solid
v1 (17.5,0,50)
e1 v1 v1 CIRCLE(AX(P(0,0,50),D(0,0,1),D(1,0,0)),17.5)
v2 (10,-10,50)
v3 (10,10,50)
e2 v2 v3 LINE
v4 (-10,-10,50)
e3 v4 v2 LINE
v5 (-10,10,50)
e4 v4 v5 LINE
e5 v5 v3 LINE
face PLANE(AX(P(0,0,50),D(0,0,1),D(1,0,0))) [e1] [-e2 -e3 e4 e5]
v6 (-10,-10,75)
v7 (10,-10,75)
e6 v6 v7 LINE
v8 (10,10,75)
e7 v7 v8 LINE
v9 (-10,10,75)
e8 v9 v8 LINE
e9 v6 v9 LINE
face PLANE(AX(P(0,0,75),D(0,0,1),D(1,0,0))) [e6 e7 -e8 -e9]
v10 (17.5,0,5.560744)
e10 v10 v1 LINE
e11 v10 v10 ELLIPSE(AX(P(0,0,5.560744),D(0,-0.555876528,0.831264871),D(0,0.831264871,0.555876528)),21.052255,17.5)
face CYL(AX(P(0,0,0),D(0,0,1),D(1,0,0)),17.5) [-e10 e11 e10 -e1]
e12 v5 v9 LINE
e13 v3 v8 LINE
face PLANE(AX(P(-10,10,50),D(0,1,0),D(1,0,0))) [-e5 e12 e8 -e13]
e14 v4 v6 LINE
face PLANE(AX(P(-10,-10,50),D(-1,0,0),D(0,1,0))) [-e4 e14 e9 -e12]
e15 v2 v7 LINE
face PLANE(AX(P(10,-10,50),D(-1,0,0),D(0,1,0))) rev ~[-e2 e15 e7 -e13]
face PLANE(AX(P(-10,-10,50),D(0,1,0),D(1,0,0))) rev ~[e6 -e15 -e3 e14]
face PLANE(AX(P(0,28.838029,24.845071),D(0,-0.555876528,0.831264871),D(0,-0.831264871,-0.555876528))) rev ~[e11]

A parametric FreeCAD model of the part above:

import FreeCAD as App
import Part
import Sketcher
from FreeCAD import Vector

doc = App.newDocument("Part")
body = doc.addObject("PartDesign::Body", "Body")

sketch1 = body.newObject("Sketcher::SketchObject", "Sketch")
sketch1.AttachmentSupport = (doc.getObject("XY_Plane"), [""])
sketch1.MapMode = "FlatFace"
sketch1.addGeometry(Part.Circle(Vector(0, 0, 0), Vector(0, 0, 1), 18), False)
sketch1.addConstraint([
    Sketcher.Constraint("Coincident", 0, 3, -1, 1),
    Sketcher.Constraint("Diameter", 0, 35.0),
])
pad1 = body.newObject("PartDesign::Pad", "Pad")
pad1.Profile = sketch1
pad1.Length = 100
pad1.Midplane = True

sketch2 = body.newObject("Sketcher::SketchObject", "Sketch001")
sketch2.AttachmentSupport = (doc.getObject("XY_Plane"), [""])
sketch2.MapMode = "FlatFace"
sketch2.AttachmentOffset = App.Placement(Vector(0, 0, 50), App.Rotation())
sketch2.addGeometry([
    Part.LineSegment(Vector(-10, 10, 0), Vector(-10, -10, 0)),
    Part.LineSegment(Vector(-10, -10, 0), Vector(10, -10, 0)),
    Part.LineSegment(Vector(10, -10, 0), Vector(10, 10, 0)),
    Part.LineSegment(Vector(10, 10, 0), Vector(-10, 10, 0)),
], False)
sketch2.addConstraint([
    Sketcher.Constraint("Coincident", 0, 2, 1, 1),
    Sketcher.Constraint("Coincident", 1, 2, 2, 1),
    Sketcher.Constraint("Coincident", 2, 2, 3, 1),
    Sketcher.Constraint("Coincident", 3, 2, 0, 1),
    Sketcher.Constraint("Vertical", 0),
    Sketcher.Constraint("Horizontal", 1),
    Sketcher.Constraint("Vertical", 2),
    Sketcher.Constraint("Horizontal", 3),
    Sketcher.Constraint("Symmetric", 0, 2, 2, 2, -1, 1),
    Sketcher.Constraint("Equal", 3, 0),
    Sketcher.Constraint("DistanceX", 1, 1, 1, 2, 20.0),
])
pad2 = body.newObject("PartDesign::Pad", "Pad001")
pad2.Profile = sketch2
pad2.Length = 25

sketch3 = body.newObject("Sketcher::SketchObject", "Sketch002")
sketch3.AttachmentSupport = (doc.getObject("YZ_Plane"), [""])
sketch3.MapMode = "FlatFace"
sketch3.addGeometry([
    Part.LineSegment(Vector(42, -61, 0), Vector(29, 25, 0)),
    Part.LineSegment(Vector(29, 25, 0), Vector(-43, -24, 0)),
    Part.LineSegment(Vector(-43, -24, 0), Vector(-43, -61, 0)),
    Part.LineSegment(Vector(-43, -61, 0), Vector(42, -61, 0)),
], False)
sketch3.addConstraint([
    Sketcher.Constraint("Coincident", 0, 2, 1, 1),
    Sketcher.Constraint("Coincident", 1, 2, 2, 1),
    Sketcher.Constraint("Coincident", 2, 2, 3, 1),
    Sketcher.Constraint("Coincident", 3, 2, 0, 1),
    Sketcher.Constraint("Vertical", 2),
    Sketcher.Constraint("Horizontal", 3),
    Sketcher.Constraint("DistanceX", 3, 1, 3, 2, 85.183099),
    Sketcher.Constraint("DistanceY", 2, 2, 2, 1, 37.489439),
    Sketcher.Constraint("DistanceX", 1, 2, 0, 2, 72.316902),
    Sketcher.Constraint("Distance", 1, 86.99622),
    Sketcher.Constraint("DistanceX", -1, 1, 0, 2, 28.838029),
    Sketcher.Constraint("DistanceY", -1, 1, 0, 2, 24.845071),
])
pocket1 = body.newObject("PartDesign::Pocket", "Pocket")
pocket1.Profile = sketch3
pocket1.Length = 50
pocket1.Midplane = True

doc.recompute()
